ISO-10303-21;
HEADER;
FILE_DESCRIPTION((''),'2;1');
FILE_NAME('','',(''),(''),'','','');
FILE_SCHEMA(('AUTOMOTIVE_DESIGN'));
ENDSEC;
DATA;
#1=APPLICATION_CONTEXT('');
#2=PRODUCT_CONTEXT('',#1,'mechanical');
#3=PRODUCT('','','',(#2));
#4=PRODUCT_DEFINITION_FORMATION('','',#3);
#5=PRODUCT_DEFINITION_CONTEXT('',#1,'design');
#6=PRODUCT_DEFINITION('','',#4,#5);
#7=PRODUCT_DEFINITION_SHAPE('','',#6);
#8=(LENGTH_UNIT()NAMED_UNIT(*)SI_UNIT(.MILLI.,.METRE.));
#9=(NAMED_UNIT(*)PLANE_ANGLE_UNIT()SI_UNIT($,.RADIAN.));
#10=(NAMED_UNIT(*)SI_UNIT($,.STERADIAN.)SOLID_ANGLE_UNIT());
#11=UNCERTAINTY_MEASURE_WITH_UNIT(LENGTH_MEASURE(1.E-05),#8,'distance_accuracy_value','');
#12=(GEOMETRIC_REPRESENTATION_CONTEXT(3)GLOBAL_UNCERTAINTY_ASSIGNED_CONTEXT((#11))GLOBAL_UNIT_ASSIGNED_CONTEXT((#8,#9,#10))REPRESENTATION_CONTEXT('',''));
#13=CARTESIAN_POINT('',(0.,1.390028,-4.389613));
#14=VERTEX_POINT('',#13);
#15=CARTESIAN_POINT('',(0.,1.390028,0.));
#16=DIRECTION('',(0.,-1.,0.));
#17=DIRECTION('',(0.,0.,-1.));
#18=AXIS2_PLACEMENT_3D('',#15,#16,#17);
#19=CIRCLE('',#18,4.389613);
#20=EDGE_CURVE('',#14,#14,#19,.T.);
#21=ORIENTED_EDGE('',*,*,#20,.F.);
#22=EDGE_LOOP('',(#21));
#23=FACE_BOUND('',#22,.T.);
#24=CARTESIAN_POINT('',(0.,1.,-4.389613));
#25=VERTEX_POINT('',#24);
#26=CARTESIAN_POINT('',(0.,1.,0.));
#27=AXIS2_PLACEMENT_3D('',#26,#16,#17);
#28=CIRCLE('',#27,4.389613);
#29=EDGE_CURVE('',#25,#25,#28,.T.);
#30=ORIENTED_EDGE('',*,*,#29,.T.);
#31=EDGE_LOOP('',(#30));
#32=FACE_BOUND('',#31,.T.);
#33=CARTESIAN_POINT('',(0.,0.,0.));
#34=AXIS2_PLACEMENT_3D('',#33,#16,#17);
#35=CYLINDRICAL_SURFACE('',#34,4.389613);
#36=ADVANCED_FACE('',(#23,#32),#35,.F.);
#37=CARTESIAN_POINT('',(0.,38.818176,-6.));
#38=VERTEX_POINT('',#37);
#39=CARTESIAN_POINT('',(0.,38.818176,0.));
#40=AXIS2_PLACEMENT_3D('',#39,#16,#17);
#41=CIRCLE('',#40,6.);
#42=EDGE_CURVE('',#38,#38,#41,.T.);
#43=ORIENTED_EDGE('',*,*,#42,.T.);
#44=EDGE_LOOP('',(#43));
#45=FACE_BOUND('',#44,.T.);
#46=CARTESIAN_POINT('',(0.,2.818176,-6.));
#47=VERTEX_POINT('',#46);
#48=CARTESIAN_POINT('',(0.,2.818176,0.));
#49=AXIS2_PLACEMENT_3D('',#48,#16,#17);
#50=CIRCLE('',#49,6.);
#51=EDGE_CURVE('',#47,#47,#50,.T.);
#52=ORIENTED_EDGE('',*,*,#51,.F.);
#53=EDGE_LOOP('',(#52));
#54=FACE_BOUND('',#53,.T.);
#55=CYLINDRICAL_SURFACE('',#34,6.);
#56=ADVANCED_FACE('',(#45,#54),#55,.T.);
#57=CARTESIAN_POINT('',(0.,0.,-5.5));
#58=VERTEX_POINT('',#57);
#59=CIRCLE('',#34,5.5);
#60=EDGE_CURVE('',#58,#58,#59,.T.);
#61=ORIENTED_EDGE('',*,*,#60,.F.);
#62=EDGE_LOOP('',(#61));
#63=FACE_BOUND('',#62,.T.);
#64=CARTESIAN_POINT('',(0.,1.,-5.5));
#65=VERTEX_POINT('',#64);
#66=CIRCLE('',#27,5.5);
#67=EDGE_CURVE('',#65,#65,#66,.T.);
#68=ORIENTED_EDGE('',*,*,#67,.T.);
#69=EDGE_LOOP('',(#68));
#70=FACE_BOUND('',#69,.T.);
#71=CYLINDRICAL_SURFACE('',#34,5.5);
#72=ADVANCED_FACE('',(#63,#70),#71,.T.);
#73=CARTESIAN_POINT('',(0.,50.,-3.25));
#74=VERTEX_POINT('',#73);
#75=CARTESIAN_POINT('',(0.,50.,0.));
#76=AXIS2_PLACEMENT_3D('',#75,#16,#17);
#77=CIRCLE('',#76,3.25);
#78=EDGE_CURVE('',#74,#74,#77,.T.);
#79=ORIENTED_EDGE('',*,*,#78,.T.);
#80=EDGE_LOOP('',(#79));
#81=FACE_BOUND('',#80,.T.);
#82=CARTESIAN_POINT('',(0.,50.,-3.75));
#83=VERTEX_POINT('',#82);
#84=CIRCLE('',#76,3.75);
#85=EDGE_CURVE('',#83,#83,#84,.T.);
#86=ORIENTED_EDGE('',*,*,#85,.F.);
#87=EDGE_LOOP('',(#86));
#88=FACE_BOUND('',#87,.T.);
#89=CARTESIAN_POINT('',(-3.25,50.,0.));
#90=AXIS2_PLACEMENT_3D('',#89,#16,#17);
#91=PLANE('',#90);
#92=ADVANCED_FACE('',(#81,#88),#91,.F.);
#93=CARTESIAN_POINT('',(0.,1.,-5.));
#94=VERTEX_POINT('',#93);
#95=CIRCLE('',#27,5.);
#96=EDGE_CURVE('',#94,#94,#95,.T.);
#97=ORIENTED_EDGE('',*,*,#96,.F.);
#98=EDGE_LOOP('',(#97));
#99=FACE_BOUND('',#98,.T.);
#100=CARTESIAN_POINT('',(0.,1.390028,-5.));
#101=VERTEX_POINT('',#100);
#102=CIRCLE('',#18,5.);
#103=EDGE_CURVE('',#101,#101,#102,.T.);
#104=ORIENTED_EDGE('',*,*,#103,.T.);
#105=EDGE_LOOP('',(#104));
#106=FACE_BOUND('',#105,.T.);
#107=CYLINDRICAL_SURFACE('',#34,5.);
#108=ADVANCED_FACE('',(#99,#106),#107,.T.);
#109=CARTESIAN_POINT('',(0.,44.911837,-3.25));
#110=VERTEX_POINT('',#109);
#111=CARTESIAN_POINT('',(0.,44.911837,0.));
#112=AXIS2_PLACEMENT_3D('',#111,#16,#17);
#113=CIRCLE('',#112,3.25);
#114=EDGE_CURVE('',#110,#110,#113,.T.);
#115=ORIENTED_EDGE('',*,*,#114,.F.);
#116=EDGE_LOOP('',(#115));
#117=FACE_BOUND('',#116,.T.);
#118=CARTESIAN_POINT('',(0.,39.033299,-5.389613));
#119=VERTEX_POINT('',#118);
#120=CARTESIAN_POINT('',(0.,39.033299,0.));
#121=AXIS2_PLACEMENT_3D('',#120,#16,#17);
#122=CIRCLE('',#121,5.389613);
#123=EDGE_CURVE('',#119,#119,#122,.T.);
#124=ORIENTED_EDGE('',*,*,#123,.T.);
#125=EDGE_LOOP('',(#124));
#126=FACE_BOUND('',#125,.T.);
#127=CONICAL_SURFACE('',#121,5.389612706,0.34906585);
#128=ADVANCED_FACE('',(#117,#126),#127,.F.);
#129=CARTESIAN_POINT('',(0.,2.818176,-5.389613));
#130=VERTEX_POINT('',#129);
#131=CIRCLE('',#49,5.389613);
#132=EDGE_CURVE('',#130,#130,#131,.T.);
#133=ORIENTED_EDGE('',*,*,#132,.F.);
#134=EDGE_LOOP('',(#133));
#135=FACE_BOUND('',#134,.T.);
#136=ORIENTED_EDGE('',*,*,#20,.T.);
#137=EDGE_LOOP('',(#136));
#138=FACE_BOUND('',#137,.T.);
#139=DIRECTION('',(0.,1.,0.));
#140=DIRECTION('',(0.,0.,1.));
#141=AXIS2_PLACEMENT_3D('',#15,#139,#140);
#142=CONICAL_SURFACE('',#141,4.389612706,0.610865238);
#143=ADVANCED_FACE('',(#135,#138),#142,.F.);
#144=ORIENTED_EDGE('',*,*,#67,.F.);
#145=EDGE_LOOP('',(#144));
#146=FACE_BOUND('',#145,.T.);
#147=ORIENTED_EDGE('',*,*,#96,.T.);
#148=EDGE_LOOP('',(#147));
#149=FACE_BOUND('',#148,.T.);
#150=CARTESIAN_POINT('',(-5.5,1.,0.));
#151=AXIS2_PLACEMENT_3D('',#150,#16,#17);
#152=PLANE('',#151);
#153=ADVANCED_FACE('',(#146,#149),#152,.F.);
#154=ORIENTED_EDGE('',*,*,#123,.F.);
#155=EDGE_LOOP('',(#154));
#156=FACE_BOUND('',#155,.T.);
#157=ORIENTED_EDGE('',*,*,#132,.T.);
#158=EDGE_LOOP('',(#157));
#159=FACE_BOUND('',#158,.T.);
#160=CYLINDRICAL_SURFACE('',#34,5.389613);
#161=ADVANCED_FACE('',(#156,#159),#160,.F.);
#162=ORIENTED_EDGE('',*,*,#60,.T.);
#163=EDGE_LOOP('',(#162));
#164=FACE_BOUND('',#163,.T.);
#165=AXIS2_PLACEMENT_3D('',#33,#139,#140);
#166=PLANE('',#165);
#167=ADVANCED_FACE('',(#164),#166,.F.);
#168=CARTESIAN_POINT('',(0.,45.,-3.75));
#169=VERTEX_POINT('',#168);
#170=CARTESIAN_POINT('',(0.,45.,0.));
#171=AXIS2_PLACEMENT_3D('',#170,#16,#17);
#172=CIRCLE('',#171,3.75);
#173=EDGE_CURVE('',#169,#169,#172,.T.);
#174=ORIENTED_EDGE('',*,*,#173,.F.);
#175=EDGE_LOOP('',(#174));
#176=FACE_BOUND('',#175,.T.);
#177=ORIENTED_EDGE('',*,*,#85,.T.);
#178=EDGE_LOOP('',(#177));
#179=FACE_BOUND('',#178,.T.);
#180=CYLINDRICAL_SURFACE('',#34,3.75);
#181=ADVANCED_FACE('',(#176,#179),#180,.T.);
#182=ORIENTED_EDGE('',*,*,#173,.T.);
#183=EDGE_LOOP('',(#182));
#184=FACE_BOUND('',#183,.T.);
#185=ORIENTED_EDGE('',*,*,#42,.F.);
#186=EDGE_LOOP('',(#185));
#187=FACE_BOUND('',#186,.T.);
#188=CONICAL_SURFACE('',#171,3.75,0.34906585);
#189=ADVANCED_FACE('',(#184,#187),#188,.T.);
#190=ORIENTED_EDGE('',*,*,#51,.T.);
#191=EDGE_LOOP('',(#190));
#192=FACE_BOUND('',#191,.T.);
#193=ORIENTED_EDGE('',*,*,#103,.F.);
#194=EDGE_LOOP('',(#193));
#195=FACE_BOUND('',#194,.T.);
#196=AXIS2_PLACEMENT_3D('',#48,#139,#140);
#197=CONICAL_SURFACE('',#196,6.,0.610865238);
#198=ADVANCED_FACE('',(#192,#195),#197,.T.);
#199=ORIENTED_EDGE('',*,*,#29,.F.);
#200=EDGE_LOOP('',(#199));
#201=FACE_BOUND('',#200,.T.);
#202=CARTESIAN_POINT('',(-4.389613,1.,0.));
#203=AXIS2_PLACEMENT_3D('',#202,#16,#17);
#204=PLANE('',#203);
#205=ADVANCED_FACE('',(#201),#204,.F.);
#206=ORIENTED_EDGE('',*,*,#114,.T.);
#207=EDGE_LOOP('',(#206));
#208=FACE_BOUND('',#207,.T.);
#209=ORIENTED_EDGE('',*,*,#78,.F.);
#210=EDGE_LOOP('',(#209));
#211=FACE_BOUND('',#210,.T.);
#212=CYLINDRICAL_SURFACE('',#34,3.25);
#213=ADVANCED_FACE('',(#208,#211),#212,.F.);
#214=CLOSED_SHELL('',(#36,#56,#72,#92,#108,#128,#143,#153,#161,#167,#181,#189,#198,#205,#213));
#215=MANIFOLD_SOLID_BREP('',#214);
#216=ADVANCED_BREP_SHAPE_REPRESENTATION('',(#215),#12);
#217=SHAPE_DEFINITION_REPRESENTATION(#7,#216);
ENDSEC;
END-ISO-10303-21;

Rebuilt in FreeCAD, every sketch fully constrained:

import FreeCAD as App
import Part
import Sketcher

V = App.Vector
Q = App.Units.Quantity

doc = App.newDocument("Part")
body = doc.addObject("PartDesign::Body", "Body")

sketch1 = body.newObject("Sketcher::SketchObject", "Sketch")
sketch1.AttachmentSupport = (doc.getObject("XY_Plane"), [""])
sketch1.MapMode = "FlatFace"
sketch1.addGeometry(Part.LineSegment(V(-3.25, 50, 0), V(-3.75, 50, 0)), False)
sketch1.addGeometry(Part.LineSegment(V(-3.75, 50, 0), V(-3.75, 45, 0)), False)
sketch1.addGeometry(Part.LineSegment(V(-3.75, 45, 0), V(-6, 38.82, 0)), False)
sketch1.addGeometry(Part.LineSegment(V(-6, 38.82, 0), V(-6, 2.82, 0)), False)
sketch1.addGeometry(Part.LineSegment(V(-6, 2.82, 0), V(-5, 1.39, 0)), False)
sketch1.addGeometry(Part.LineSegment(V(-5, 1.39, 0), V(-5, 1, 0)), False)
sketch1.addGeometry(Part.LineSegment(V(-5, 1, 0), V(-5.5, 1, 0)), False)
sketch1.addGeometry(Part.LineSegment(V(-5.5, 1, 0), V(-5.5, 0, 0)), False)
sketch1.addGeometry(Part.LineSegment(V(-5.5, 0, 0), V(0, 0, 0)), False)
sketch1.addGeometry(Part.LineSegment(V(0, 0, 0), V(0, 1, 0)), False)
sketch1.addGeometry(Part.LineSegment(V(0, 1, 0), V(-4.39, 1, 0)), False)
sketch1.addGeometry(Part.LineSegment(V(-4.39, 1, 0), V(-4.39, 1.39, 0)), False)
sketch1.addGeometry(Part.LineSegment(V(-4.39, 1.39, 0), V(-5.39, 2.82, 0)), False)
sketch1.addGeometry(Part.LineSegment(V(-5.39, 2.82, 0), V(-5.39, 39.03, 0)), False)
sketch1.addGeometry(Part.LineSegment(V(-5.39, 39.03, 0), V(-3.25, 44.91, 0)), False)
sketch1.addGeometry(Part.LineSegment(V(-3.25, 44.91, 0), V(-3.25, 50, 0)), False)
sketch1.addConstraint(Sketcher.Constraint("Coincident", 0, 2, 1, 1))
sketch1.addConstraint(Sketcher.Constraint("Coincident", 1, 2, 2, 1))
sketch1.addConstraint(Sketcher.Constraint("Coincident", 2, 2, 3, 1))
sketch1.addConstraint(Sketcher.Constraint("Coincident", 3, 2, 4, 1))
sketch1.addConstraint(Sketcher.Constraint("Coincident", 4, 2, 5, 1))
sketch1.addConstraint(Sketcher.Constraint("Coincident", 5, 2, 6, 1))
sketch1.addConstraint(Sketcher.Constraint("Coincident", 6, 2, 7, 1))
sketch1.addConstraint(Sketcher.Constraint("Coincident", 7, 2, 8, 1))
sketch1.addConstraint(Sketcher.Constraint("Coincident", 8, 2, 9, 1))
sketch1.addConstraint(Sketcher.Constraint("Coincident", 9, 2, 10, 1))
sketch1.addConstraint(Sketcher.Constraint("Coincident", 10, 2, 11, 1))
sketch1.addConstraint(Sketcher.Constraint("Coincident", 11, 2, 12, 1))
sketch1.addConstraint(Sketcher.Constraint("Coincident", 12, 2, 13, 1))
sketch1.addConstraint(Sketcher.Constraint("Coincident", 13, 2, 14, 1))
sketch1.addConstraint(Sketcher.Constraint("Coincident", 14, 2, 15, 1))
sketch1.addConstraint(Sketcher.Constraint("Coincident", 15, 2, 0, 1))
sketch1.addConstraint(Sketcher.Constraint("Horizontal", 0))
sketch1.addConstraint(Sketcher.Constraint("Vertical", 1))
sketch1.addConstraint(Sketcher.Constraint("Vertical", 3))
sketch1.addConstraint(Sketcher.Constraint("Vertical", 5))
sketch1.addConstraint(Sketcher.Constraint("Horizontal", 6))
sketch1.addConstraint(Sketcher.Constraint("Vertical", 7))
sketch1.addConstraint(Sketcher.Constraint("Horizontal", 8))
sketch1.addConstraint(Sketcher.Constraint("Vertical", 9))
sketch1.addConstraint(Sketcher.Constraint("Horizontal", 10))
sketch1.addConstraint(Sketcher.Constraint("Vertical", 11))
sketch1.addConstraint(Sketcher.Constraint("Vertical", 13))
sketch1.addConstraint(Sketcher.Constraint("Vertical", 15))
sketch1.addConstraint(Sketcher.Constraint("Coincident", 8, 2, -1, 1))
sketch1.addConstraint(Sketcher.Constraint("Parallel", 4, 12))
sketch1.addConstraint(Sketcher.Constraint("Parallel", 2, 14))
sketch1.addConstraint(Sketcher.Constraint("Horizontal", 6, 2, 9, 2))
sketch1.addConstraint(Sketcher.Constraint("Horizontal", 4, 2, 11, 2))
sketch1.addConstraint(Sketcher.Constraint("Horizontal", 3, 2, 12, 2))
sketch1.addConstraint(Sketcher.Constraint("Equal", 0, 6))
sketch1.addConstraint(Sketcher.Constraint("DistanceY", 1, 2, 1, 1, Q("5 mm")))
sketch1.addConstraint(Sketcher.Constraint("DistanceY", 3, 2, 3, 1, Q("36 mm")))
sketch1.addConstraint(Sketcher.Constraint("DistanceY", 7, 2, 7, 1, Q("1 mm")))
sketch1.addConstraint(Sketcher.Constraint("Angle", 2, Q("-110 deg")))
sketch1.addConstraint(Sketcher.Constraint("Angle", 4, Q("-55 deg")))
sketch1.addConstraint(Sketcher.Constraint("DistanceX", 0, 2, 0, 1, Q("0.5 mm")))
sketch1.addConstraint(Sketcher.Constraint("DistanceX", 8, 1, 8, 2, Q("5.5 mm")))
sketch1.addConstraint(Sketcher.Constraint("DistanceY", -1, 1, 0, 2, Q("50 mm")))
sketch1.addConstraint(Sketcher.Constraint("DistanceX", 2, 2, -1, 1, Q("6 mm")))
sketch1.addConstraint(Sketcher.Constraint("DistanceX", 0, 2, -1, 1, Q("3.75 mm")))
sketch1.addConstraint(Sketcher.Constraint("DistanceY", -1, 1, 13, 2, Q("39.033299 mm")))
sketch1.addConstraint(Sketcher.Constraint("Distance", 14, Q("6.255809 mm")))
revolution = body.newObject("PartDesign::Revolution", "Revolution")
revolution.Profile = sketch1
revolution.ReferenceAxis = (sketch1, ["V_Axis"])
revolution.Angle = 360

doc.recompute()
